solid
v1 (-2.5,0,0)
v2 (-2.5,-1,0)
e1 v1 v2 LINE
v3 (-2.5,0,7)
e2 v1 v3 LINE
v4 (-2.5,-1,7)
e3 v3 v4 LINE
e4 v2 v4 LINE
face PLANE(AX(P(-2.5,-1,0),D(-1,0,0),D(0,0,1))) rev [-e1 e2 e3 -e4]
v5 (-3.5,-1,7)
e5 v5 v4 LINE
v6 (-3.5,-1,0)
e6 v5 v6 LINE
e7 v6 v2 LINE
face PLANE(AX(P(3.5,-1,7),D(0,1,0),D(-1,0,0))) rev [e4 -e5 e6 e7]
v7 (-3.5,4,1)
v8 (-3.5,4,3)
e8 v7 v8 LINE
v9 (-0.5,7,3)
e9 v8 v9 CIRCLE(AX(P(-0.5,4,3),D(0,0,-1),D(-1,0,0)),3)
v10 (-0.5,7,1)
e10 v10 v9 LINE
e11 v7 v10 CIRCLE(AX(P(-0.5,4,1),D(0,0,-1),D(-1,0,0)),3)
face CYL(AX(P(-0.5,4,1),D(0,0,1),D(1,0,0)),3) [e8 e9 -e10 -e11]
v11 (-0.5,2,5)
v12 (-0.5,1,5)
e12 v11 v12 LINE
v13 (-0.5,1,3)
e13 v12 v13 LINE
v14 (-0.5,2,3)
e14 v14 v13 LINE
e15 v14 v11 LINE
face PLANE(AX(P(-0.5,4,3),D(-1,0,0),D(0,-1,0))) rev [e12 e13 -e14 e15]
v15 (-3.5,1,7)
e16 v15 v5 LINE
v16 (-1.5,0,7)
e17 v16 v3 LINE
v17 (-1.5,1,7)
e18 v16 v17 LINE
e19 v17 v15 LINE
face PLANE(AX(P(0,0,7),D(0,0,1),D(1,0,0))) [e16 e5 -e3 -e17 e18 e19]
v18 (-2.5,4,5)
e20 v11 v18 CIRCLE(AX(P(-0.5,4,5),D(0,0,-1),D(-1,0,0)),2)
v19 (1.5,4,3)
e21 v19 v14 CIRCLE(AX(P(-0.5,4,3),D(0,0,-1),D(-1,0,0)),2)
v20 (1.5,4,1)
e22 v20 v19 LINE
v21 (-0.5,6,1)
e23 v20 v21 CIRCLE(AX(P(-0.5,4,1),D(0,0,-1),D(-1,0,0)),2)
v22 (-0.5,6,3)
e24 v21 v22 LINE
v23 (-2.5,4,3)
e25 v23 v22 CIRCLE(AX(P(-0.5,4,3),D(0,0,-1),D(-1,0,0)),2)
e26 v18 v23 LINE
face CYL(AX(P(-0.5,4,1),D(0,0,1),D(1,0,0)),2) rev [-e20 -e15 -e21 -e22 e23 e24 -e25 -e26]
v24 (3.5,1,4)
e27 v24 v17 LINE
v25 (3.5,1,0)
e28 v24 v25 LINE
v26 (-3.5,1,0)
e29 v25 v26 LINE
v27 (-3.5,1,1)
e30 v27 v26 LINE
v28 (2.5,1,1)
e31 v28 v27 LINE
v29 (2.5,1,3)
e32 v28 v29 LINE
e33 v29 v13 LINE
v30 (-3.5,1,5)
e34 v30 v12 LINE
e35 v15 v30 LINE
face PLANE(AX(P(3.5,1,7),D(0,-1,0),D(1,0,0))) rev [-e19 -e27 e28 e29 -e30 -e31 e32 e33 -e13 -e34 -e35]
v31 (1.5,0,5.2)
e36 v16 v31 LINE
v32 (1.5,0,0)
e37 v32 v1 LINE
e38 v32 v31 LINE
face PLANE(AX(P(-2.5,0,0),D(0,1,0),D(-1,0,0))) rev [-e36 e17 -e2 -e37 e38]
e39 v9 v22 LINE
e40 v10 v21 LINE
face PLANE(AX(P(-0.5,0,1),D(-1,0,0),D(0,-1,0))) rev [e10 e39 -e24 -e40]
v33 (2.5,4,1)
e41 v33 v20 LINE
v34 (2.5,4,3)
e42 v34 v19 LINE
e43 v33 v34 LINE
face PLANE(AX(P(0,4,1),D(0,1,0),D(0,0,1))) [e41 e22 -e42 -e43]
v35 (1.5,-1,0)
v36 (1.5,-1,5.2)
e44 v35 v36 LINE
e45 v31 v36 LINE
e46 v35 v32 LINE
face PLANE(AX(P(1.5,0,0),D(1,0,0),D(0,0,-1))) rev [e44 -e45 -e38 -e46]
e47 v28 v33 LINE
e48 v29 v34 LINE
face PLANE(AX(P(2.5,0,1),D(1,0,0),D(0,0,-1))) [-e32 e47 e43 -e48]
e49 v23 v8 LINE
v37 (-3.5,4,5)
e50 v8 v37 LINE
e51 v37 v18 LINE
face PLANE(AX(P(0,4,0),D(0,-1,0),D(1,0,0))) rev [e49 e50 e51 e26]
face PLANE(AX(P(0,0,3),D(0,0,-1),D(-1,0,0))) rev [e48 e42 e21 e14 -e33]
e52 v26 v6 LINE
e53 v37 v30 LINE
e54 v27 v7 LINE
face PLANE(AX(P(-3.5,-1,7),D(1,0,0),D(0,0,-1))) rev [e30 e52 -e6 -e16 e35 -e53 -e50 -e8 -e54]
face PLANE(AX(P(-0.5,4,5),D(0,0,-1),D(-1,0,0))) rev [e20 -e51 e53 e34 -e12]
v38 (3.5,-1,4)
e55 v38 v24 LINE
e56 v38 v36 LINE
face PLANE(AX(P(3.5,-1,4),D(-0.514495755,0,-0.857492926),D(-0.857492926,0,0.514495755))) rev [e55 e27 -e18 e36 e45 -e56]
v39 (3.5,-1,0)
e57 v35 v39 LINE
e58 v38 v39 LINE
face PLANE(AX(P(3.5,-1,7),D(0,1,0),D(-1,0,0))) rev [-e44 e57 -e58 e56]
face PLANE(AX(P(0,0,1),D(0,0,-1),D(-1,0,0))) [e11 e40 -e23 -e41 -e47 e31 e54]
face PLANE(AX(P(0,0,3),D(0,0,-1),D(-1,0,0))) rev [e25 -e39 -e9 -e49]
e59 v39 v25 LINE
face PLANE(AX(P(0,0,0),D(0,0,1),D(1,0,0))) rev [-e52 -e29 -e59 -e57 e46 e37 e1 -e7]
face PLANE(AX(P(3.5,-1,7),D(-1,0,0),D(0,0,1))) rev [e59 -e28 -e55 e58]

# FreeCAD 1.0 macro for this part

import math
import FreeCAD as App
import Part
import Sketcher
from FreeCAD import Vector
Q = App.Units.Quantity


def add_polygon(sketch, points):
    """Adds a closed chain of lines whose ends are joined by coincident constraints."""
    first, n = sketch.GeometryCount, len(points)
    for a, b in zip(points, points[1:] + points[:1]):
        sketch.addGeometry(Part.LineSegment(App.Vector(*a, 0), App.Vector(*b, 0)), False)
    for i in range(n):
        sketch.addConstraint(Sketcher.Constraint("Coincident", first + i, 2, first + (i + 1) % n, 1))

doc = App.newDocument("Part")
body = doc.addObject("PartDesign::Body", "Body")

# Sketch on XY plane
sketch1 = body.newObject("Sketcher::SketchObject", "Sketch")
sketch1.AttachmentSupport = (doc.getObject("XY_Plane"), [""])
sketch1.MapMode = "FlatFace"
add_polygon(sketch1, [(-3.5, 1), (-3.5, -1), (3.5, -1), (3.5, 1)])  # lines 0-3
sketch1.addConstraint([
    Sketcher.Constraint("Vertical", 0),
    Sketcher.Constraint("Horizontal", 1),
    Sketcher.Constraint("Vertical", 2),
    Sketcher.Constraint("Horizontal", 3),
    Sketcher.Constraint("Symmetric", 0, 2, 2, 2, -1, 1),
    Sketcher.Constraint("DistanceX", 1, 1, 1, 2, Q("7 mm")),
    Sketcher.Constraint("DistanceY", 0, 2, 0, 1, Q("2 mm")),
])
pad1 = body.newObject("PartDesign::Pad", "Pad")
pad1.Profile = sketch1
pad1.Length = 7

# Sketch on XZ plane
sketch2 = body.newObject("Sketcher::SketchObject", "Sketch001")
sketch2.AttachmentSupport = (doc.getObject("XZ_Plane"), [""])
sketch2.MapMode = "FlatFace"
sketch2.AttachmentOffset = App.Placement(Vector(0, 0, -1), App.Rotation())
add_polygon(sketch2, [(3.5, 4), (-1.5, 7), (3.5, 7)])  # lines 0-2
sketch2.addConstraint([
    Sketcher.Constraint("Horizontal", 1),
    Sketcher.Constraint("Vertical", 2),
    Sketcher.Constraint("DistanceX", 1, 1, 1, 2, Q("5 mm")),
    Sketcher.Constraint("DistanceY", 2, 2, 2, 1, Q("3 mm")),
    Sketcher.Constraint("DistanceY", -1, 1, 0, 2, Q("7 mm")),
    Sketcher.Constraint("DistanceX", 0, 2, -1, 1, Q("1.5 mm")),
])
pocket1 = body.newObject("PartDesign::Pocket", "Pocket")
pocket1.Profile = sketch2
pocket1.Type = "ThroughAll"
pocket1.Reversed = True

# Sketch on XY plane
sketch3 = body.newObject("Sketcher::SketchObject", "Sketch002")
sketch3.AttachmentSupport = (doc.getObject("XY_Plane"), [""])
sketch3.MapMode = "FlatFace"
sketch3.AttachmentOffset = App.Placement(Vector(0, 0, 7), App.Rotation())
add_polygon(sketch3, [(-2.5, 0), (-2.5, -1), (1.5, -1), (1.5, 0)])  # lines 0-3
sketch3.addConstraint([
    Sketcher.Constraint("Vertical", 0),
    Sketcher.Constraint("Horizontal", 1),
    Sketcher.Constraint("Vertical", 2),
    Sketcher.Constraint("Horizontal", 3),
    Sketcher.Constraint("PointOnObject", 2, 2, -1),
    Sketcher.Constraint("DistanceX", 1, 1, 1, 2, Q("4 mm")),
    Sketcher.Constraint("DistanceY", 0, 2, 0, 1, Q("1 mm")),
    Sketcher.Constraint("DistanceX", 0, 2, -1, 1, Q("2.5 mm")),
])
pocket2 = body.newObject("PartDesign::Pocket", "Pocket001")
pocket2.Profile = sketch3
pocket2.Type = "ThroughAll"

# Sketch on XZ plane
sketch4 = body.newObject("Sketcher::SketchObject", "Sketch003")
sketch4.AttachmentSupport = (doc.getObject("XZ_Plane"), [""])
sketch4.MapMode = "FlatFace"
sketch4.AttachmentOffset = App.Placement(Vector(0, 0, -1), App.Rotation())
add_polygon(sketch4, [(-3.5, 3), (-3.5, 5), (-0.5, 5), (-0.5, 3)])  # lines 0-3
sketch4.addConstraint([
    Sketcher.Constraint("Vertical", 0),
    Sketcher.Constraint("Horizontal", 1),
    Sketcher.Constraint("Vertical", 2),
    Sketcher.Constraint("Horizontal", 3),
    Sketcher.Constraint("DistanceX", 1, 1, 1, 2, Q("3 mm")),
    Sketcher.Constraint("DistanceY", 0, 1, 0, 2, Q("2 mm")),
    Sketcher.Constraint("DistanceY", -1, 1, 0, 2, Q("5 mm")),
    Sketcher.Constraint("DistanceX", 0, 2, -1, 1, Q("3.5 mm")),
])
pad2 = body.newObject("PartDesign::Pad", "Pad001")
pad2.Profile = sketch4
pad2.Length = 3
pad2.Reversed = True

# Sketch on XY plane
sketch5 = body.newObject("Sketcher::SketchObject", "Sketch004")
sketch5.AttachmentSupport = (doc.getObject("XY_Plane"), [""])
sketch5.MapMode = "FlatFace"
sketch5.AttachmentOffset = App.Placement(Vector(0, 0, 3), App.Rotation())
sketch5.addGeometry([
    Part.ArcOfCircle(Part.Circle(Vector(-0.5, 4, 0), Vector(0, 0, 1), 3), math.radians(90), math.radians(180)),  # 0
    Part.LineSegment(Vector(-0.5, 7, 0), Vector(-0.5, 6, 0)),  # 1
    Part.ArcOfCircle(Part.Circle(Vector(-0.5, 4, 0), Vector(0, 0, 1), 2), math.radians(90), math.radians(180)),  # 2
    Part.ArcOfCircle(Part.Circle(Vector(-0.5, 4, 0), Vector(0, 0, 1), 2), math.radians(-180), math.radians(-90)),  # 3
    Part.ArcOfCircle(Part.Circle(Vector(-0.5, 4, 0), Vector(0, 0, 1), 2), math.radians(-90), math.radians(0)),  # 4
    Part.LineSegment(Vector(1.5, 4, 0), Vector(2.5, 4, 0)),  # 5
    Part.LineSegment(Vector(2.5, 4, 0), Vector(2.5, 1, 0)),  # 6
    Part.LineSegment(Vector(2.5, 1, 0), Vector(-3.5, 1, 0)),  # 7
    Part.LineSegment(Vector(-3.5, 1, 0), Vector(-3.5, 4, 0)),  # 8
], False)
sketch5.addConstraint([
    Sketcher.Constraint("Coincident", 0, 1, 1, 1),
    Sketcher.Constraint("Coincident", 1, 2, 2, 1),
    Sketcher.Constraint("Tangent", 2, 2, 3, 1),
    Sketcher.Constraint("Tangent", 3, 2, 4, 1),
    Sketcher.Constraint("Coincident", 4, 2, 5, 1),
    Sketcher.Constraint("Coincident", 5, 2, 6, 1),
    Sketcher.Constraint("Coincident", 6, 2, 7, 1),
    Sketcher.Constraint("Coincident", 7, 2, 8, 1),
    Sketcher.Constraint("Tangent", 8, 2, 0, 2),
    Sketcher.Constraint("Vertical", 1),
    Sketcher.Constraint("Horizontal", 5),
    Sketcher.Constraint("Vertical", 6),
    Sketcher.Constraint("Horizontal", 7),
    Sketcher.Constraint("Vertical", 8),
    Sketcher.Constraint("Coincident", 2, 3, 0, 3),
    Sketcher.Constraint("Coincident", 4, 3, 0, 3),
    Sketcher.Constraint("Symmetric", 2, 2, 5, 2, -2),
    Sketcher.Constraint("Horizontal", 4, 3, 2, 2),
    Sketcher.Constraint("Vertical", 4, 3, 0, 1),
    Sketcher.Constraint("Vertical", 1, 2, 3, 2),
    Sketcher.Constraint("Equal", 5, 1),
    Sketcher.Constraint("Radius", 0, Q("3 mm")),
    Sketcher.Constraint("Radius", 2, Q("2 mm")),
    Sketcher.Constraint("DistanceY", 6, 2, 6, 1, Q("3 mm")),
    Sketcher.Constraint("DistanceY", -1, 1, 0, 3, Q("4 mm")),
])
pad3 = body.newObject("PartDesign::Pad", "Pad002")
pad3.Profile = sketch5
pad3.Length = 2
pad3.Reversed = True

# Sketch on XY plane
sketch6 = body.newObject("Sketcher::SketchObject", "Sketch005")
sketch6.AttachmentSupport = (doc.getObject("XY_Plane"), [""])
sketch6.MapMode = "FlatFace"
sketch6.AttachmentOffset = App.Placement(Vector(0, 0, 1), App.Rotation())
sketch6.addGeometry(Part.Circle(Vector(-0.5, 4, 0), Vector(0, 0, 1), 2), False)
sketch6.addConstraint([
    Sketcher.Constraint("Diameter", 0, Q("4 mm")),
    Sketcher.Constraint("DistanceY", -1, 1, 0, 3, Q("4 mm")),
    Sketcher.Constraint("DistanceX", 0, 3, -1, 1, Q("0.5 mm")),
])
pocket3 = body.newObject("PartDesign::Pocket", "Pocket002")
pocket3.Profile = sketch6
pocket3.Length = 5
pocket3.Reversed = True

doc.recompute()
